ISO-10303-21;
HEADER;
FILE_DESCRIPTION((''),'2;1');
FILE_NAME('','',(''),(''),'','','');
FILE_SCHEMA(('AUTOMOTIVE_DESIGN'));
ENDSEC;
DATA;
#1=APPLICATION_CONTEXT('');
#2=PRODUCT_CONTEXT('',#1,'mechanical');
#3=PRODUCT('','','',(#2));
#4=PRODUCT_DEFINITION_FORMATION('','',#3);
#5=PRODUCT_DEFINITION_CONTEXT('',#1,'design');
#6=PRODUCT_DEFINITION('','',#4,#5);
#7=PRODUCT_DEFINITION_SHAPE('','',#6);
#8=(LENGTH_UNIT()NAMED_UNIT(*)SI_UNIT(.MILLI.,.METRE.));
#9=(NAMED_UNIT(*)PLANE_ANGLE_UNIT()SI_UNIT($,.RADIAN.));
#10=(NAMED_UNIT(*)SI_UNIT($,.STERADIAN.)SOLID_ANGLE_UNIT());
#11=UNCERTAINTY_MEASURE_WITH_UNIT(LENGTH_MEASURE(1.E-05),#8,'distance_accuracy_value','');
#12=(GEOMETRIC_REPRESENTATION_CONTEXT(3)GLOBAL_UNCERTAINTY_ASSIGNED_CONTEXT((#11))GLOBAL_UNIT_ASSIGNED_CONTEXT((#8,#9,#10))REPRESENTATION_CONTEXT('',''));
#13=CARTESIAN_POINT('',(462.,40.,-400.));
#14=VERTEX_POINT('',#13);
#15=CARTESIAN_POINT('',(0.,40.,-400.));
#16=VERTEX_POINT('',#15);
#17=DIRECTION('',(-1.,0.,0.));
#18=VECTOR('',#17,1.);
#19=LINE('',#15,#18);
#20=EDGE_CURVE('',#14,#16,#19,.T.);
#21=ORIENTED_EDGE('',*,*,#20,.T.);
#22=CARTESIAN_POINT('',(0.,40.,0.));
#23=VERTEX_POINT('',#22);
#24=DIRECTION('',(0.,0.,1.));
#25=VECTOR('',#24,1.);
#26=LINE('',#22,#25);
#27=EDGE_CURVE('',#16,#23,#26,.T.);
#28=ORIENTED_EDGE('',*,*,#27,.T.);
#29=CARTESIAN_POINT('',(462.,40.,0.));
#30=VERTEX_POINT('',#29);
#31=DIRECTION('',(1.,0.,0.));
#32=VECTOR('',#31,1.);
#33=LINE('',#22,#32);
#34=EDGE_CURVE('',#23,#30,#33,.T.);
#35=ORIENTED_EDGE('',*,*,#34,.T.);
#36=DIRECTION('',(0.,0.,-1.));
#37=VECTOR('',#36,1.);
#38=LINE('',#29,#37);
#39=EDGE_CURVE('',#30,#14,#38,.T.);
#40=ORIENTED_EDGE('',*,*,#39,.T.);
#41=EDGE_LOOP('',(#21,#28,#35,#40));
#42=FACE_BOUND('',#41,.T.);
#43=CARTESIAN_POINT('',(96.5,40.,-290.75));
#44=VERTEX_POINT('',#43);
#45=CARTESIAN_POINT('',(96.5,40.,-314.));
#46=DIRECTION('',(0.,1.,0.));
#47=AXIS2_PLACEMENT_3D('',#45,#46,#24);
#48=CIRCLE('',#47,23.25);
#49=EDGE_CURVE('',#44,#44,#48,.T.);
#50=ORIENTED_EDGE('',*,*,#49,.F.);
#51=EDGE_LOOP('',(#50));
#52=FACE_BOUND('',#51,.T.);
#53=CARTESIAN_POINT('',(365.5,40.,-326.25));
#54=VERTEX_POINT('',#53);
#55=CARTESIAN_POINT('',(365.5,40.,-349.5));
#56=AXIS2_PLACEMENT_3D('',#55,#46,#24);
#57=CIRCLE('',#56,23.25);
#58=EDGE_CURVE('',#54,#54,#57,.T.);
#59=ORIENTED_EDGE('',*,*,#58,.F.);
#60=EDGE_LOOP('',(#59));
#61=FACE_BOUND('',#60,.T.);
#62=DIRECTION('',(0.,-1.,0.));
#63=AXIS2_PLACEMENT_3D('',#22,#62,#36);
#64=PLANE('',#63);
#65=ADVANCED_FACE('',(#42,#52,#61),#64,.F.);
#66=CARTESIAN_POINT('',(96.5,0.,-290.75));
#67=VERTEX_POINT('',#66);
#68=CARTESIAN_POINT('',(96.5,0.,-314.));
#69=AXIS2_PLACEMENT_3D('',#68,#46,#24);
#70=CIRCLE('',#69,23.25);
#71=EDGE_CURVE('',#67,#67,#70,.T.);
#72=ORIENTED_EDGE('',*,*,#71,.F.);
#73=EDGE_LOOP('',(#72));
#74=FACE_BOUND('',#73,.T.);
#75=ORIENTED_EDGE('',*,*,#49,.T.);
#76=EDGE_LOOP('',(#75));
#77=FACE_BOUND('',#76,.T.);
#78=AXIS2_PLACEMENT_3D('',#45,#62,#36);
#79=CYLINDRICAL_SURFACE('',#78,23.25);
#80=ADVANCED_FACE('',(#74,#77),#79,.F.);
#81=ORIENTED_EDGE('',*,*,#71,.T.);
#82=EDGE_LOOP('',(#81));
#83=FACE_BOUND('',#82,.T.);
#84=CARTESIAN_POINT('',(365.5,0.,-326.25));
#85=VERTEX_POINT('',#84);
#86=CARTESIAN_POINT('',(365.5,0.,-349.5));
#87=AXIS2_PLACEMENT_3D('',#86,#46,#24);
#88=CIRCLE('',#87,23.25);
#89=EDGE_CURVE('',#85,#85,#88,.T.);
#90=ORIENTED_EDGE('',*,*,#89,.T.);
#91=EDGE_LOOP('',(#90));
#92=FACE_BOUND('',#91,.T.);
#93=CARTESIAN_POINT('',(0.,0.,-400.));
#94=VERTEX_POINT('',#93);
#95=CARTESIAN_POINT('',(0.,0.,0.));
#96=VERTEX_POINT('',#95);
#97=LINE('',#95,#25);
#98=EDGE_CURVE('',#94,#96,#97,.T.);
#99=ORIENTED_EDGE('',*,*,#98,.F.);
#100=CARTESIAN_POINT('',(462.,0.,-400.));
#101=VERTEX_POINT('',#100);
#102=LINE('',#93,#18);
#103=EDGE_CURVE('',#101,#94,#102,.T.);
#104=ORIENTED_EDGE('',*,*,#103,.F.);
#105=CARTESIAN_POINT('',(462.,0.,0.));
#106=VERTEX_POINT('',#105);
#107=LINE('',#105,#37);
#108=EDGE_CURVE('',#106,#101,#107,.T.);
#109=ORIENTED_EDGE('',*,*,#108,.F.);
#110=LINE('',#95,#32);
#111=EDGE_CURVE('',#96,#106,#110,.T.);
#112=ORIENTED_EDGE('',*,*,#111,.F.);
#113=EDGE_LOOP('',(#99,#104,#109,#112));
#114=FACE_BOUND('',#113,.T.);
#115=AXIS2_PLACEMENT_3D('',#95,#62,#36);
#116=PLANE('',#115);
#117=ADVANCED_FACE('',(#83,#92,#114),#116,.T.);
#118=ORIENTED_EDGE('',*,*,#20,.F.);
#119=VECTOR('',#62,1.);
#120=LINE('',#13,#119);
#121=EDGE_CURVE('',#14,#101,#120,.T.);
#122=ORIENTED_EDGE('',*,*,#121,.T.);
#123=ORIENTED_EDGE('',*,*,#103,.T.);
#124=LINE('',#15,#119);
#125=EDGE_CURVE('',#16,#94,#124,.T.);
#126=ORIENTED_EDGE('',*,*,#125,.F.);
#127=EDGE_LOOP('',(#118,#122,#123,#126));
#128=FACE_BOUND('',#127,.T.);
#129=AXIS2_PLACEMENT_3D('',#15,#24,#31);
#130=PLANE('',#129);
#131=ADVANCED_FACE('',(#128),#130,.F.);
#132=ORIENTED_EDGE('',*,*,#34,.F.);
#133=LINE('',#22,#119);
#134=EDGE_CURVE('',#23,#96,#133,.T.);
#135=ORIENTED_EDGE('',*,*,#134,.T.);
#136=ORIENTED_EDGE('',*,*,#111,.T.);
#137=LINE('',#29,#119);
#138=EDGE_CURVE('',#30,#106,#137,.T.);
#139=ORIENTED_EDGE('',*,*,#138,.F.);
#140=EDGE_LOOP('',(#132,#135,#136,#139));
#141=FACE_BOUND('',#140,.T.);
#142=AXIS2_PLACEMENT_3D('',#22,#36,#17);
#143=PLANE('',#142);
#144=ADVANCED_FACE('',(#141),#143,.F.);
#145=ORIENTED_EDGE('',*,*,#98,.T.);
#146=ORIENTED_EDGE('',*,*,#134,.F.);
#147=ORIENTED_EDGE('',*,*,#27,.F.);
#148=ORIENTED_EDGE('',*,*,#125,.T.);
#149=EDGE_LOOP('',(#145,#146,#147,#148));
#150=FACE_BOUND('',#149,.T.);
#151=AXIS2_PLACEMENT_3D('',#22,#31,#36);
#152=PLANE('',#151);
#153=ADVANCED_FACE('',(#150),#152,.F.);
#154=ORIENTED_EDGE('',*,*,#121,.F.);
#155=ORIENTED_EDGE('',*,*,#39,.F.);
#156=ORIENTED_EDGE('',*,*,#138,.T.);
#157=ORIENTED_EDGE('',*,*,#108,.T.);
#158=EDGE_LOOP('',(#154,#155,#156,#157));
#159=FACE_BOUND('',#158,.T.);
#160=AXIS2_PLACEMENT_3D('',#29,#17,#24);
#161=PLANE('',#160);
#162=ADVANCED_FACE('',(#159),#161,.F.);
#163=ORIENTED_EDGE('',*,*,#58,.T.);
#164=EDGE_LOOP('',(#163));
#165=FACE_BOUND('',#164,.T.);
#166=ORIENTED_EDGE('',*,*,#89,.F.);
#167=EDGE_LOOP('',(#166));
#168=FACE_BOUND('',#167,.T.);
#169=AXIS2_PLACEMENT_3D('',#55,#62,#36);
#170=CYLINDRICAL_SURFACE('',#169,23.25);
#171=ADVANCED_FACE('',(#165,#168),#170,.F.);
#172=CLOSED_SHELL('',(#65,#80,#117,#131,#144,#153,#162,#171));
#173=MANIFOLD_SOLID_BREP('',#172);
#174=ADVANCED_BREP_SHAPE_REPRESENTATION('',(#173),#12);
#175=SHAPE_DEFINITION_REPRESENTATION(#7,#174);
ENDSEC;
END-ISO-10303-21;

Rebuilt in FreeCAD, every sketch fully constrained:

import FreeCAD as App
import Part
import Sketcher
Q = App.Units.Quantity

doc = App.newDocument("Part")
body = doc.addObject("PartDesign::Body", "Body")

# Sketch on XZ plane
sketch1 = body.newObject("Sketcher::SketchObject", "Sketch")
sketch1.AttachmentSupport = (doc.getObject("XZ_Plane"), [""])
sketch1.MapMode = "FlatFace"
sketch1.addGeometry([
    Part.LineSegment(App.Vector(0, -400, 0), App.Vector(0, 0, 0)),  # 0
    Part.LineSegment(App.Vector(0, 0, 0), App.Vector(462, 0, 0)),  # 1
    Part.LineSegment(App.Vector(462, 0, 0), App.Vector(462, -400, 0)),  # 2
    Part.LineSegment(App.Vector(462, -400, 0), App.Vector(0, -400, 0)),  # 3
    Part.Circle(App.Vector(96.5, -314, 0), App.Vector(0, 0, 1), 23.25),  # 4
    Part.Circle(App.Vector(365.5, -349.5, 0), App.Vector(0, 0, 1), 23.25),  # 5
], False)
sketch1.addConstraint([
    Sketcher.Constraint("Coincident", 0, 2, 1, 1),
    Sketcher.Constraint("Coincident", 1, 2, 2, 1),
    Sketcher.Constraint("Coincident", 2, 2, 3, 1),
    Sketcher.Constraint("Coincident", 3, 2, 0, 1),
    Sketcher.Constraint("Vertical", 0),
    Sketcher.Constraint("Horizontal", 1),
    Sketcher.Constraint("Vertical", 2),
    Sketcher.Constraint("Horizontal", 3),
    Sketcher.Constraint("Coincident", 0, 2, -1, 1),
    Sketcher.Constraint("Equal", 4, 5),
    Sketcher.Constraint("Diameter", 4, Q("46.5 mm")),
    Sketcher.Constraint("DistanceX", 1, 1, 1, 2, Q("462 mm")),
    Sketcher.Constraint("DistanceY", 0, 1, 0, 2, Q("400 mm")),
    Sketcher.Constraint("DistanceY", 4, 3, -1, 1, Q("314 mm")),
    Sketcher.Constraint("DistanceX", 4, 3, 5, 3, Q("269 mm")),
    Sketcher.Constraint("DistanceX", -1, 1, 4, 3, Q("96.5 mm")),
    Sketcher.Constraint("DistanceY", 5, 3, -1, 1, Q("349.5 mm")),
])
pad1 = body.newObject("PartDesign::Pad", "Pad")
pad1.Profile = sketch1
pad1.Length = 40
pad1.Reversed = True

doc.recompute()
